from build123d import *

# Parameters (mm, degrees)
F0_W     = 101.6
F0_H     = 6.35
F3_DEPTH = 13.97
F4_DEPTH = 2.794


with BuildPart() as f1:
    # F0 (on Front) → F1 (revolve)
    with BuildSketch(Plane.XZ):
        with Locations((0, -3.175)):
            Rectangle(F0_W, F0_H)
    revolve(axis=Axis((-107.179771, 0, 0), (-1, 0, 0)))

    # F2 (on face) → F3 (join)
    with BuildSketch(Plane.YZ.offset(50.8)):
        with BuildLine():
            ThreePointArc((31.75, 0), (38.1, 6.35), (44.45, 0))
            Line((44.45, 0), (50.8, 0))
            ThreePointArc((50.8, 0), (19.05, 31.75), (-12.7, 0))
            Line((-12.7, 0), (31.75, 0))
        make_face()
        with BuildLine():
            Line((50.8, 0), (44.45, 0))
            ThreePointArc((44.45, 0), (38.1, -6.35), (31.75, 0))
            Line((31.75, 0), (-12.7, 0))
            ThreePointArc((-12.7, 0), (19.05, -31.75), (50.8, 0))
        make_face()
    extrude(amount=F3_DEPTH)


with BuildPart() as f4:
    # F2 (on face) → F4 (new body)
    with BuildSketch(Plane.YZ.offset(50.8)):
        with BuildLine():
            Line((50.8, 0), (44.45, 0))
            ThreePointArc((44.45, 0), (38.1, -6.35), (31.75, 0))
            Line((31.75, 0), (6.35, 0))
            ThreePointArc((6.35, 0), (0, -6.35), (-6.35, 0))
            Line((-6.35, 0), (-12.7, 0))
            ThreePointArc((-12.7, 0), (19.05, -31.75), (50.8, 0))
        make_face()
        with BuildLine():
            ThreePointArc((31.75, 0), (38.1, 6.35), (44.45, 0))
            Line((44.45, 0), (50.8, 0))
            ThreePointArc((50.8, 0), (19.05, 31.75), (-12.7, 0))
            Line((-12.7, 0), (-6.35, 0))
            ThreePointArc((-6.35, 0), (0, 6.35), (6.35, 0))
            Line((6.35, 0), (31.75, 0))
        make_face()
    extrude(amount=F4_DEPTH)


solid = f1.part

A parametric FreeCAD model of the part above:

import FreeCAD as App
import Part
import Sketcher

V = App.Vector
Q = App.Units.Quantity

doc = App.newDocument("Part")
body = doc.addObject("PartDesign::Body", "Body")

# Sketch on XZ plane
sketch1 = doc.addObject("Sketcher::SketchObject", "Sketch")
body.addObject(sketch1)
sketch1.AttachmentSupport = (doc.XZ_Plane, [""])
sketch1.MapMode = "FlatFace"
sketch1.addGeometry(Part.LineSegment(V(-51, 0, 0), V(-51, -6, 0)), False)
sketch1.addGeometry(Part.LineSegment(V(-51, -6, 0), V(51, -6, 0)), False)
sketch1.addGeometry(Part.LineSegment(V(51, -6, 0), V(51, 0, 0)), False)
sketch1.addGeometry(Part.LineSegment(V(51, 0, 0), V(-51, 0, 0)), False)
sketch1.addConstraint(Sketcher.Constraint("Coincident", 0, 2, 1, 1))
sketch1.addConstraint(Sketcher.Constraint("Coincident", 1, 2, 2, 1))
sketch1.addConstraint(Sketcher.Constraint("Coincident", 2, 2, 3, 1))
sketch1.addConstraint(Sketcher.Constraint("Coincident", 3, 2, 0, 1))
sketch1.addConstraint(Sketcher.Constraint("Vertical", 0))
sketch1.addConstraint(Sketcher.Constraint("Horizontal", 1))
sketch1.addConstraint(Sketcher.Constraint("Vertical", 2))
sketch1.addConstraint(Sketcher.Constraint("Horizontal", 3))
sketch1.addConstraint(Sketcher.Constraint("Symmetric", 2, 2, 3, 2, -1, 1))
sketch1.addConstraint(Sketcher.Constraint("DistanceX", 1, 1, 1, 2, Q("4 in")))
sketch1.addConstraint(Sketcher.Constraint("DistanceY", 0, 2, 0, 1, Q("0.25 in")))
revolution = doc.addObject("PartDesign::Revolution", "Revolution")
body.addObject(revolution)
revolution.Profile = sketch1
revolution.ReferenceAxis = (sketch1, ["H_Axis"])
revolution.Angle = 360

# Sketch on YZ plane
sketch2 = doc.addObject("Sketcher::SketchObject", "Sketch001")
body.addObject(sketch2)
sketch2.AttachmentSupport = (doc.YZ_Plane, [""])
sketch2.MapMode = "FlatFace"
sketch2.AttachmentOffset = App.Placement(V(0, 0, 2 * 25.4), App.Rotation())
sketch2.addGeometry(Part.Circle(V(19, 0, 0), V(0, 0, 1), 32), False)
sketch2.addGeometry(Part.Circle(V(38, 0, 0), V(0, 0, 1), 6), False)
sketch2.addConstraint(Sketcher.Constraint("PointOnObject", 0, 3, -1))
sketch2.addConstraint(Sketcher.Constraint("PointOnObject", 1, 3, -1))
sketch2.addConstraint(Sketcher.Constraint("Diameter", 0, Q("2.5 in")))
sketch2.addConstraint(Sketcher.Constraint("Diameter", 1, Q("0.5 in")))
sketch2.addConstraint(Sketcher.Constraint("DistanceX", -1, 1, 1, 3, Q("1.5 in")))
sketch2.addConstraint(Sketcher.Constraint("DistanceX", -1, 1, 0, 3, Q("0.75 in")))
pad1 = doc.addObject("PartDesign::Pad", "Pad")
body.addObject(pad1)
pad1.Profile = sketch2
pad1.Length = Q("0.55 in")
body2 = doc.addObject("PartDesign::Body", "Body001")

# Sketch on YZ plane
sketch3 = doc.addObject("Sketcher::SketchObject", "Sketch002")
body2.addObject(sketch3)
sketch3.AttachmentSupport = (doc.getObject("YZ_Plane001"), [""])
sketch3.MapMode = "FlatFace"
sketch3.AttachmentOffset = App.Placement(V(0, 0, 2 * 25.4), App.Rotation())
sketch3.addGeometry(Part.Circle(V(19, 0, 0), V(0, 0, 1), 32), False)
sketch3.addGeometry(Part.Circle(V(38, 0, 0), V(0, 0, 1), 6), False)
sketch3.addGeometry(Part.Circle(V(0, 0, 0), V(0, 0, 1), 6), False)
sketch3.addConstraint(Sketcher.Constraint("Coincident", 2, 3, -1, 1))
sketch3.addConstraint(Sketcher.Constraint("Equal", 1, 2))
sketch3.addConstraint(Sketcher.Constraint("PointOnObject", 0, 3, -1))
sketch3.addConstraint(Sketcher.Constraint("PointOnObject", 1, 3, -1))
sketch3.addConstraint(Sketcher.Constraint("Diameter", 0, Q("2.5 in")))
sketch3.addConstraint(Sketcher.Constraint("Diameter", 1, Q("0.5 in")))
sketch3.addConstraint(Sketcher.Constraint("DistanceX", -1, 1, 1, 3, Q("1.5 in")))
sketch3.addConstraint(Sketcher.Constraint("DistanceX", -1, 1, 0, 3, Q("0.75 in")))
pad2 = doc.addObject("PartDesign::Pad", "Pad001")
body2.addObject(pad2)
pad2.Profile = sketch3
pad2.Length = Q("0.11 in")
body2.Visibility = False

doc.recompute()
